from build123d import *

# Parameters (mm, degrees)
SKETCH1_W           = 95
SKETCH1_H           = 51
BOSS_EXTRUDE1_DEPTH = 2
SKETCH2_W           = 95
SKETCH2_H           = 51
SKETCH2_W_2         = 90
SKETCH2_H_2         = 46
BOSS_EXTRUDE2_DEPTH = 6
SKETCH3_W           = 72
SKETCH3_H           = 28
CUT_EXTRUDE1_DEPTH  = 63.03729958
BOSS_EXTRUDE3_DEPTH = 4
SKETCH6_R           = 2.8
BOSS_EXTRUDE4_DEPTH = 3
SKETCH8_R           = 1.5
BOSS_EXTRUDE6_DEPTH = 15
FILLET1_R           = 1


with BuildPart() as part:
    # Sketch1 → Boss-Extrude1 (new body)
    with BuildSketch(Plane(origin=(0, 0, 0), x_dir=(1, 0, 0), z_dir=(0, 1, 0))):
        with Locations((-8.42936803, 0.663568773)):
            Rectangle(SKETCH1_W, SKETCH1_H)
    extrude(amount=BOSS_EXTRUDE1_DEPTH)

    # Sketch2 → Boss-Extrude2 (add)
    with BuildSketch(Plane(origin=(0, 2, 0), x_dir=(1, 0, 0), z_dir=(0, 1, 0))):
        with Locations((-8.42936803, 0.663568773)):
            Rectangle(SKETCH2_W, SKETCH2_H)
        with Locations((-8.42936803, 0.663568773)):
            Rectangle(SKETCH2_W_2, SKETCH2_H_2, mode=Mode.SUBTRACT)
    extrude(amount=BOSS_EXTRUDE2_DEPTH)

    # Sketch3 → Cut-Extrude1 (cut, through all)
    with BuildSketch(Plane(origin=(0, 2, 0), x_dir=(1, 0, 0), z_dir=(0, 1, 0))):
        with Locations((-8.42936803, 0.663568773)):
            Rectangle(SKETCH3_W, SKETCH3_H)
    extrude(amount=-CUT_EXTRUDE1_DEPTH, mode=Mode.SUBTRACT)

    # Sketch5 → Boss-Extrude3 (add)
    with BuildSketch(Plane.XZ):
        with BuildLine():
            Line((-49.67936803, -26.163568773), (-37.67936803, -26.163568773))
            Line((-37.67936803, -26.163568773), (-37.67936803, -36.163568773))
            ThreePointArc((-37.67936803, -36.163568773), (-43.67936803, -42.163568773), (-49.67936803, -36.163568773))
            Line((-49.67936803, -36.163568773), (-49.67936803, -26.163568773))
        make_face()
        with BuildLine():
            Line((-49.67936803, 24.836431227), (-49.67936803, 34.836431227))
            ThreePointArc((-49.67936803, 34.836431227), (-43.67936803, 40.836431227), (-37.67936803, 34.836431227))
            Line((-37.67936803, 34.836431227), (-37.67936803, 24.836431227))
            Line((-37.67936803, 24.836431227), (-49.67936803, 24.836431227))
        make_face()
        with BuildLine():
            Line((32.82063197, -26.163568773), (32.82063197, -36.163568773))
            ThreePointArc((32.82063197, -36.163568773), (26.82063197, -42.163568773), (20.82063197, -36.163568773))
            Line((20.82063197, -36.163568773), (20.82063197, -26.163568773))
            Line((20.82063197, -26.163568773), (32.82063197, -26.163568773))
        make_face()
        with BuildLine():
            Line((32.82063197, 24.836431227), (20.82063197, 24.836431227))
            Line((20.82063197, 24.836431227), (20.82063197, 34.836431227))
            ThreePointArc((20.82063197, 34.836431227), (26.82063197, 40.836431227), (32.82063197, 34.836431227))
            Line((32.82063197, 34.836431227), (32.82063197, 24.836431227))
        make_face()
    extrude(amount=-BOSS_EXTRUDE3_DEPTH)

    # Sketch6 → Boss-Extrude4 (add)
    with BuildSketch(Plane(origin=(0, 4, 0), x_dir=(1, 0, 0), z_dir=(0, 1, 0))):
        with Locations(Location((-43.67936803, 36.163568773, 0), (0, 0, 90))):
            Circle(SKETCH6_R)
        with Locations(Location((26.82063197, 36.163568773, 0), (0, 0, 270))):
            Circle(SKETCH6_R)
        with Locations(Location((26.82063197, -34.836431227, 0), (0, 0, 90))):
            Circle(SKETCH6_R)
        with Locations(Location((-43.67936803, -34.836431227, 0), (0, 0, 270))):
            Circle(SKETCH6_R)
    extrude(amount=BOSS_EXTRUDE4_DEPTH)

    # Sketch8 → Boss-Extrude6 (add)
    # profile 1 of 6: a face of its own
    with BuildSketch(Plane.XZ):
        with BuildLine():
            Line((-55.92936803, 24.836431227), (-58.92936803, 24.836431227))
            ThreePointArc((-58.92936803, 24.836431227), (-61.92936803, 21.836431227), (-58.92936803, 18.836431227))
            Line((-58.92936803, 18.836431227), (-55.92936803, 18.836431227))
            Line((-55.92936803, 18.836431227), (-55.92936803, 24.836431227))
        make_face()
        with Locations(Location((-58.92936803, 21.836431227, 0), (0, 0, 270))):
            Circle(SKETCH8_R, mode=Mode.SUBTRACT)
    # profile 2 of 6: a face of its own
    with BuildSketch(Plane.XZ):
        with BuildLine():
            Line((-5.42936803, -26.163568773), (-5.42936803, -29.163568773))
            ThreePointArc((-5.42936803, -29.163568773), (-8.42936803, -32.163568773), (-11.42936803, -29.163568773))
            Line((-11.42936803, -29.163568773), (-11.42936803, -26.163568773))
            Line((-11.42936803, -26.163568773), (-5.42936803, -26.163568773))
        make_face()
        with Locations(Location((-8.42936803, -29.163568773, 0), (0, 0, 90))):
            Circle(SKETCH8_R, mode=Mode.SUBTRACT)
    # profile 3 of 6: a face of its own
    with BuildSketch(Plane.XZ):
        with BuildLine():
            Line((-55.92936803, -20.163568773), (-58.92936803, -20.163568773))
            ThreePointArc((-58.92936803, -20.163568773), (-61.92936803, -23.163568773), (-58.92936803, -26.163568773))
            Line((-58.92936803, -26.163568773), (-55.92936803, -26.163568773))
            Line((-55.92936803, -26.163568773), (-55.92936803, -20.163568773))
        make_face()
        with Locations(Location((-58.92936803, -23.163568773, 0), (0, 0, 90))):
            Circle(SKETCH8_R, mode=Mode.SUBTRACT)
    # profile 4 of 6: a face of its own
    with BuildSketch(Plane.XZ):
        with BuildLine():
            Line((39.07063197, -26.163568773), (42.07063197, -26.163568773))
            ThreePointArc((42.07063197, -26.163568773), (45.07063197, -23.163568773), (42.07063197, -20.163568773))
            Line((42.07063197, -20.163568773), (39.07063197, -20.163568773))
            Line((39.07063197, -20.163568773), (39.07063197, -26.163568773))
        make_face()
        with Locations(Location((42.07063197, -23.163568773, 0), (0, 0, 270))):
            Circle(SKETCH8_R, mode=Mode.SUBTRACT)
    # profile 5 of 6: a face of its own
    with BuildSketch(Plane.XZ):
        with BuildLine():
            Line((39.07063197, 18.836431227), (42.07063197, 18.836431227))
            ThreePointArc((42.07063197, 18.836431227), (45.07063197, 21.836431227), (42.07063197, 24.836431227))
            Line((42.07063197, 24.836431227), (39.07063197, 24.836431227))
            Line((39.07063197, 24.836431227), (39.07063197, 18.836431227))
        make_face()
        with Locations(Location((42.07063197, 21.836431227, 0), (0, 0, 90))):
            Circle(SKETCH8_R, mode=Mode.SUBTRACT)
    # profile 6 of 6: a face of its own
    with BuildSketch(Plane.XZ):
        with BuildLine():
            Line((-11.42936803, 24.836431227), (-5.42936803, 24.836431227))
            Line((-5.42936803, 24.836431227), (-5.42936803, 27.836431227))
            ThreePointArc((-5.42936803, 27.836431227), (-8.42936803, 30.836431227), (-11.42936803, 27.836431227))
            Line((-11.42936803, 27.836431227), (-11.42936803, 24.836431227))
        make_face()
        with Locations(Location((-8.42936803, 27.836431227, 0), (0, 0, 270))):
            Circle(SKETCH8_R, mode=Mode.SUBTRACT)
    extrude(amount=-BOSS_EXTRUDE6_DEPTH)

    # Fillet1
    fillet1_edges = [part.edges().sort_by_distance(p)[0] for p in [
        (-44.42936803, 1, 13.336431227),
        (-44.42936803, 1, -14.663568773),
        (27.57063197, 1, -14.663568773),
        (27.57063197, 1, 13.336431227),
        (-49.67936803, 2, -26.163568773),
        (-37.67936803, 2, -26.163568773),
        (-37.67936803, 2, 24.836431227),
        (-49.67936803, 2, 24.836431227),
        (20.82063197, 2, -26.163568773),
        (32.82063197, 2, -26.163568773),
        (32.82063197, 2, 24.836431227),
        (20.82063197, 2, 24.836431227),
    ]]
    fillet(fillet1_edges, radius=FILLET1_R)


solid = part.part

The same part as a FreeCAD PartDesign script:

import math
import FreeCAD as App
import Part
import Sketcher
Q = App.Units.Quantity


def edges_at(feature, points):
    """Names of the edges that pass closest to the given points."""
    edges = feature.Shape.Edges
    near = lambda p: min(range(len(edges)), key=lambda i: edges[i].distToShape(Part.Vertex(*p))[0])
    return sorted({f"Edge{near(p) + 1}" for p in points})


def add_polygon(sketch, points):
    """Adds a closed chain of lines whose ends are joined by coincident constraints."""
    first, n = sketch.GeometryCount, len(points)
    for a, b in zip(points, points[1:] + points[:1]):
        sketch.addGeometry(Part.LineSegment(App.Vector(*a, 0), App.Vector(*b, 0)), False)
    for i in range(n):
        sketch.addConstraint(Sketcher.Constraint("Coincident", first + i, 2, first + (i + 1) % n, 1))

doc = App.newDocument("Part")
body = doc.addObject("PartDesign::Body", "Body")

sketch1 = body.newObject("Sketcher::SketchObject", "Sketch")
sketch1.AttachmentSupport = (doc.getObject("XZ_Plane"), [""])
sketch1.MapMode = "FlatFace"
add_polygon(sketch1, [(-56, -26), (-56, 25), (39, 25), (39, -26)])
sketch1.addConstraint(Sketcher.Constraint("Vertical", 0))
sketch1.addConstraint(Sketcher.Constraint("Horizontal", 1))
sketch1.addConstraint(Sketcher.Constraint("Vertical", 2))
sketch1.addConstraint(Sketcher.Constraint("Horizontal", 3))
sketch1.addConstraint(Sketcher.Constraint("DistanceX", 1, 1, 1, 2, Q("95 mm")))
sketch1.addConstraint(Sketcher.Constraint("DistanceY", 0, 1, 0, 2, Q("51 mm")))
sketch1.addConstraint(Sketcher.Constraint("DistanceX", 0, 2, -1, 1, Q("55.929368 mm")))
sketch1.addConstraint(Sketcher.Constraint("DistanceY", -1, 1, 0, 2, Q("24.836431 mm")))
pad1 = body.newObject("PartDesign::Pad", "Pad")
pad1.Profile = sketch1
pad1.Length = 2
pad1.Reversed = True

sketch2 = body.newObject("Sketcher::SketchObject", "Sketch001")
sketch2.AttachmentSupport = (doc.getObject("XZ_Plane"), [""])
sketch2.MapMode = "FlatFace"
sketch2.AttachmentOffset = App.Placement(App.Vector(0, 0, -2), App.Rotation())
add_polygon(sketch2, [(-56, -26), (-56, 25), (39, 25), (39, -26)])
add_polygon(sketch2, [(37, 22), (-53, 22), (-53, -24), (37, -24)])
sketch2.addConstraint(Sketcher.Constraint("Vertical", 0))
sketch2.addConstraint(Sketcher.Constraint("Horizontal", 1))
sketch2.addConstraint(Sketcher.Constraint("Vertical", 2))
sketch2.addConstraint(Sketcher.Constraint("Horizontal", 3))
sketch2.addConstraint(Sketcher.Constraint("Horizontal", 4))
sketch2.addConstraint(Sketcher.Constraint("Vertical", 5))
sketch2.addConstraint(Sketcher.Constraint("Horizontal", 6))
sketch2.addConstraint(Sketcher.Constraint("Vertical", 7))
sketch2.addConstraint(Sketcher.Constraint("DistanceX", 1, 1, 1, 2, Q("95 mm")))
sketch2.addConstraint(Sketcher.Constraint("DistanceX", 4, 2, 4, 1, Q("90 mm")))
sketch2.addConstraint(Sketcher.Constraint("DistanceY", 0, 1, 0, 2, Q("51 mm")))
sketch2.addConstraint(Sketcher.Constraint("DistanceY", 5, 2, 5, 1, Q("46 mm")))
sketch2.addConstraint(Sketcher.Constraint("DistanceX", 0, 2, 4, 2, Q("2.5 mm")))
sketch2.addConstraint(Sketcher.Constraint("DistanceY", 4, 2, 0, 2, Q("2.5 mm")))
sketch2.addConstraint(Sketcher.Constraint("DistanceX", 0, 2, -1, 1, Q("55.929368 mm")))
sketch2.addConstraint(Sketcher.Constraint("DistanceY", -1, 1, 0, 2, Q("24.836431 mm")))
pad2 = body.newObject("PartDesign::Pad", "Pad001")
pad2.Profile = sketch2
pad2.Length = 6
pad2.Reversed = True

sketch3 = body.newObject("Sketcher::SketchObject", "Sketch002")
sketch3.AttachmentSupport = (doc.getObject("XZ_Plane"), [""])
sketch3.MapMode = "FlatFace"
sketch3.AttachmentOffset = App.Placement(App.Vector(0, 0, -2), App.Rotation())
add_polygon(sketch3, [(-44, -15), (-44, 13), (28, 13), (28, -15)])
sketch3.addConstraint(Sketcher.Constraint("Vertical", 0))
sketch3.addConstraint(Sketcher.Constraint("Horizontal", 1))
sketch3.addConstraint(Sketcher.Constraint("Vertical", 2))
sketch3.addConstraint(Sketcher.Constraint("Horizontal", 3))
sketch3.addConstraint(Sketcher.Constraint("DistanceX", 1, 1, 1, 2, Q("72 mm")))
sketch3.addConstraint(Sketcher.Constraint("DistanceY", 0, 1, 0, 2, Q("28 mm")))
sketch3.addConstraint(Sketcher.Constraint("DistanceX", 0, 2, -1, 1, Q("44.429368 mm")))
sketch3.addConstraint(Sketcher.Constraint("DistanceY", -1, 1, 0, 2, Q("13.336431 mm")))
pocket1 = body.newObject("PartDesign::Pocket", "Pocket")
pocket1.Profile = sketch3
pocket1.Type = "ThroughAll"
pocket1.Reversed = True

sketch4 = body.newObject("Sketcher::SketchObject", "Sketch003")
sketch4.AttachmentSupport = (doc.getObject("XZ_Plane"), [""])
sketch4.MapMode = "FlatFace"
sketch4.addGeometry(Part.LineSegment(App.Vector(-38, -26, 0), App.Vector(-50, -26, 0)), False)
sketch4.addGeometry(Part.LineSegment(App.Vector(-50, -26, 0), App.Vector(-50, -36, 0)), False)
sketch4.addGeometry(Part.ArcOfCircle(Part.Circle(App.Vector(-44, -36, 0), App.Vector(0, 0, 1), 6), math.radians(180), math.radians(360)), False)
sketch4.addGeometry(Part.LineSegment(App.Vector(-38, -36, 0), App.Vector(-38, -26, 0)), False)
sketch4.addGeometry(Part.LineSegment(App.Vector(-50, 35, 0), App.Vector(-50, 25, 0)), False)
sketch4.addGeometry(Part.LineSegment(App.Vector(-50, 25, 0), App.Vector(-38, 25, 0)), False)
sketch4.addGeometry(Part.LineSegment(App.Vector(-38, 25, 0), App.Vector(-38, 35, 0)), False)
sketch4.addGeometry(Part.ArcOfCircle(Part.Circle(App.Vector(-44, 35, 0), App.Vector(0, 0, 1), 6), math.radians(0), math.radians(180)), False)
sketch4.addGeometry(Part.LineSegment(App.Vector(33, -36, 0), App.Vector(33, -26, 0)), False)
sketch4.addGeometry(Part.LineSegment(App.Vector(33, -26, 0), App.Vector(21, -26, 0)), False)
sketch4.addGeometry(Part.LineSegment(App.Vector(21, -26, 0), App.Vector(21, -36, 0)), False)
sketch4.addGeometry(Part.ArcOfCircle(Part.Circle(App.Vector(27, -36, 0), App.Vector(0, 0, 1), 6), math.radians(180), math.radians(360)), False)
sketch4.addGeometry(Part.LineSegment(App.Vector(21, 25, 0), App.Vector(33, 25, 0)), False)
sketch4.addGeometry(Part.LineSegment(App.Vector(33, 25, 0), App.Vector(33, 35, 0)), False)
sketch4.addGeometry(Part.ArcOfCircle(Part.Circle(App.Vector(27, 35, 0), App.Vector(0, 0, 1), 6), math.radians(0), math.radians(180)), False)
sketch4.addGeometry(Part.LineSegment(App.Vector(21, 35, 0), App.Vector(21, 25, 0)), False)
sketch4.addConstraint(Sketcher.Constraint("Coincident", 0, 2, 1, 1))
sketch4.addConstraint(Sketcher.Constraint("Tangent", 1, 2, 2, 1))
sketch4.addConstraint(Sketcher.Constraint("Tangent", 2, 2, 3, 1))
sketch4.addConstraint(Sketcher.Constraint("Coincident", 3, 2, 0, 1))
sketch4.addConstraint(Sketcher.Constraint("Coincident", 4, 2, 5, 1))
sketch4.addConstraint(Sketcher.Constraint("Coincident", 5, 2, 6, 1))
sketch4.addConstraint(Sketcher.Constraint("Tangent", 6, 2, 7, 1))
sketch4.addConstraint(Sketcher.Constraint("Tangent", 7, 2, 4, 1))
sketch4.addConstraint(Sketcher.Constraint("Coincident", 8, 2, 9, 1))
sketch4.addConstraint(Sketcher.Constraint("Coincident", 9, 2, 10, 1))
sketch4.addConstraint(Sketcher.Constraint("Tangent", 10, 2, 11, 1))
sketch4.addConstraint(Sketcher.Constraint("Tangent", 11, 2, 8, 1))
sketch4.addConstraint(Sketcher.Constraint("Coincident", 12, 2, 13, 1))
sketch4.addConstraint(Sketcher.Constraint("Tangent", 13, 2, 14, 1))
sketch4.addConstraint(Sketcher.Constraint("Tangent", 14, 2, 15, 1))
sketch4.addConstraint(Sketcher.Constraint("Coincident", 15, 2, 12, 1))
sketch4.addConstraint(Sketcher.Constraint("Horizontal", 0))
sketch4.addConstraint(Sketcher.Constraint("Vertical", 1))
sketch4.addConstraint(Sketcher.Constraint("Vertical", 3))
sketch4.addConstraint(Sketcher.Constraint("Vertical", 4))
sketch4.addConstraint(Sketcher.Constraint("Horizontal", 5))
sketch4.addConstraint(Sketcher.Constraint("Vertical", 6))
sketch4.addConstraint(Sketcher.Constraint("Vertical", 8))
sketch4.addConstraint(Sketcher.Constraint("Horizontal", 9))
sketch4.addConstraint(Sketcher.Constraint("Vertical", 10))
sketch4.addConstraint(Sketcher.Constraint("Horizontal", 12))
sketch4.addConstraint(Sketcher.Constraint("Vertical", 13))
sketch4.addConstraint(Sketcher.Constraint("Vertical", 15))
sketch4.addConstraint(Sketcher.Constraint("Equal", 2, 7))
sketch4.addConstraint(Sketcher.Constraint("Equal", 7, 11))
sketch4.addConstraint(Sketcher.Constraint("Equal", 11, 14))
sketch4.addConstraint(Sketcher.Constraint("Horizontal", 2, 3, 11, 3))
sketch4.addConstraint(Sketcher.Constraint("Horizontal", 7, 3, 14, 3))
sketch4.addConstraint(Sketcher.Constraint("Horizontal", 3, 2, 8, 2))
sketch4.addConstraint(Sketcher.Constraint("Horizontal", 5, 2, 12, 2))
sketch4.addConstraint(Sketcher.Constraint("Vertical", 2, 3, 7, 3))
sketch4.addConstraint(Sketcher.Constraint("Vertical", 11, 3, 14, 3))
sketch4.addConstraint(Sketcher.Constraint("Equal", 3, 4))
sketch4.addConstraint(Sketcher.Constraint("Radius", 2, Q("6 mm")))
sketch4.addConstraint(Sketcher.Constraint("DistanceY", 1, 2, 1, 1, Q("10 mm")))
sketch4.addConstraint(Sketcher.Constraint("DistanceY", 2, 3, 7, 3, Q("71 mm")))
sketch4.addConstraint(Sketcher.Constraint("DistanceX", 2, 3, 11, 3, Q("70.5 mm")))
sketch4.addConstraint(Sketcher.Constraint("DistanceX", 2, 3, -1, 1, Q("43.679368 mm")))
sketch4.addConstraint(Sketcher.Constraint("DistanceY", 2, 3, -1, 1, Q("36.163569 mm")))
pad3 = body.newObject("PartDesign::Pad", "Pad002")
pad3.Profile = sketch4
pad3.Length = 4
pad3.Reversed = True

sketch5 = body.newObject("Sketcher::SketchObject", "Sketch004")
sketch5.AttachmentSupport = (doc.getObject("XZ_Plane"), [""])
sketch5.MapMode = "FlatFace"
sketch5.AttachmentOffset = App.Placement(App.Vector(0, 0, -4), App.Rotation())
sketch5.addGeometry(Part.Circle(App.Vector(-43.7, -36.2, 0), App.Vector(0, 0, 1), 2.8), False)
sketch5.addGeometry(Part.Circle(App.Vector(26.8, -36.2, 0), App.Vector(0, 0, 1), 2.8), False)
sketch5.addGeometry(Part.Circle(App.Vector(26.8, 34.8, 0), App.Vector(0, 0, 1), 2.8), False)
sketch5.addGeometry(Part.Circle(App.Vector(-43.7, 34.8, 0), App.Vector(0, 0, 1), 2.8), False)
sketch5.addConstraint(Sketcher.Constraint("Equal", 0, 1))
sketch5.addConstraint(Sketcher.Constraint("Equal", 1, 2))
sketch5.addConstraint(Sketcher.Constraint("Equal", 2, 3))
sketch5.addConstraint(Sketcher.Constraint("Horizontal", 0, 3, 1, 3))
sketch5.addConstraint(Sketcher.Constraint("Horizontal", 2, 3, 3, 3))
sketch5.addConstraint(Sketcher.Constraint("Vertical", 1, 3, 2, 3))
sketch5.addConstraint(Sketcher.Constraint("Vertical", 0, 3, 3, 3))
sketch5.addConstraint(Sketcher.Constraint("Diameter", 0, Q("5.6 mm")))
sketch5.addConstraint(Sketcher.Constraint("DistanceY", 1, 3, 2, 3, Q("71 mm")))
sketch5.addConstraint(Sketcher.Constraint("DistanceX", 0, 3, 1, 3, Q("70.5 mm")))
sketch5.addConstraint(Sketcher.Constraint("DistanceX", 0, 3, -1, 1, Q("43.679368 mm")))
sketch5.addConstraint(Sketcher.Constraint("DistanceY", 0, 3, -1, 1, Q("36.163569 mm")))
pad4 = body.newObject("PartDesign::Pad", "Pad003")
pad4.Profile = sketch5
pad4.Length = 3
pad4.Reversed = True

sketch6 = body.newObject("Sketcher::SketchObject", "Sketch005")
sketch6.AttachmentSupport = (doc.getObject("XZ_Plane"), [""])
sketch6.MapMode = "FlatFace"
sketch6.addGeometry(Part.LineSegment(App.Vector(-55.9, 24.8, 0), App.Vector(-58.9, 24.8, 0)), False)
sketch6.addGeometry(Part.ArcOfCircle(Part.Circle(App.Vector(-58.9, 21.8, 0), App.Vector(0, 0, 1), 3), math.radians(90), math.radians(270)), False)
sketch6.addGeometry(Part.LineSegment(App.Vector(-58.9, 18.8, 0), App.Vector(-55.9, 18.8, 0)), False)
sketch6.addGeometry(Part.LineSegment(App.Vector(-55.9, 18.8, 0), App.Vector(-55.9, 24.8, 0)), False)
sketch6.addGeometry(Part.Circle(App.Vector(-58.9, 21.8, 0), App.Vector(0, 0, 1), 1.5), False)
sketch6.addGeometry(Part.LineSegment(App.Vector(-5.4, -29.2, 0), App.Vector(-5.4, -26.2, 0)), False)
sketch6.addGeometry(Part.LineSegment(App.Vector(-5.4, -26.2, 0), App.Vector(-11.4, -26.2, 0)), False)
sketch6.addGeometry(Part.LineSegment(App.Vector(-11.4, -26.2, 0), App.Vector(-11.4, -29.2, 0)), False)
sketch6.addGeometry(Part.ArcOfCircle(Part.Circle(App.Vector(-8.4, -29.2, 0), App.Vector(0, 0, 1), 3), math.radians(180), math.radians(360)), False)
sketch6.addGeometry(Part.Circle(App.Vector(-8.4, -29.2, 0), App.Vector(0, 0, 1), 1.5), False)
sketch6.addGeometry(Part.LineSegment(App.Vector(-55.9, -20.2, 0), App.Vector(-58.9, -20.2, 0)), False)
sketch6.addGeometry(Part.ArcOfCircle(Part.Circle(App.Vector(-58.9, -23.2, 0), App.Vector(0, 0, 1), 3), math.radians(90), math.radians(270)), False)
sketch6.addGeometry(Part.LineSegment(App.Vector(-58.9, -26.2, 0), App.Vector(-55.9, -26.2, 0)), False)
sketch6.addGeometry(Part.LineSegment(App.Vector(-55.9, -26.2, 0), App.Vector(-55.9, -20.2, 0)), False)
sketch6.addGeometry(Part.Circle(App.Vector(-58.9, -23.2, 0), App.Vector(0, 0, 1), 1.5), False)
sketch6.addGeometry(Part.LineSegment(App.Vector(39.1, -26.2, 0), App.Vector(42.1, -26.2, 0)), False)
sketch6.addGeometry(Part.ArcOfCircle(Part.Circle(App.Vector(42.1, -23.2, 0), App.Vector(0, 0, 1), 3), math.radians(-90), math.radians(90)), False)
sketch6.addGeometry(Part.LineSegment(App.Vector(42.1, -20.2, 0), App.Vector(39.1, -20.2, 0)), False)
sketch6.addGeometry(Part.LineSegment(App.Vector(39.1, -20.2, 0), App.Vector(39.1, -26.2, 0)), False)
sketch6.addGeometry(Part.Circle(App.Vector(42.1, -23.2, 0), App.Vector(0, 0, 1), 1.5), False)
sketch6.addGeometry(Part.LineSegment(App.Vector(39.1, 18.8, 0), App.Vector(42.1, 18.8, 0)), False)
sketch6.addGeometry(Part.ArcOfCircle(Part.Circle(App.Vector(42.1, 21.8, 0), App.Vector(0, 0, 1), 3), math.radians(-90), math.radians(90)), False)
sketch6.addGeometry(Part.LineSegment(App.Vector(42.1, 24.8, 0), App.Vector(39.1, 24.8, 0)), False)
sketch6.addGeometry(Part.LineSegment(App.Vector(39.1, 24.8, 0), App.Vector(39.1, 18.8, 0)), False)
sketch6.addGeometry(Part.Circle(App.Vector(42.1, 21.8, 0), App.Vector(0, 0, 1), 1.5), False)
sketch6.addGeometry(Part.LineSegment(App.Vector(-11.4, 24.8, 0), App.Vector(-5.4, 24.8, 0)), False)
sketch6.addGeometry(Part.LineSegment(App.Vector(-5.4, 24.8, 0), App.Vector(-5.4, 27.8, 0)), False)
sketch6.addGeometry(Part.ArcOfCircle(Part.Circle(App.Vector(-8.4, 27.8, 0), App.Vector(0, 0, 1), 3), math.radians(0), math.radians(180)), False)
sketch6.addGeometry(Part.LineSegment(App.Vector(-11.4, 27.8, 0), App.Vector(-11.4, 24.8, 0)), False)
sketch6.addGeometry(Part.Circle(App.Vector(-8.4, 27.8, 0), App.Vector(0, 0, 1), 1.5), False)
sketch6.addConstraint(Sketcher.Constraint("Tangent", 0, 2, 1, 1))
sketch6.addConstraint(Sketcher.Constraint("Tangent", 1, 2, 2, 1))
sketch6.addConstraint(Sketcher.Constraint("Coincident", 2, 2, 3, 1))
sketch6.addConstraint(Sketcher.Constraint("Coincident", 3, 2, 0, 1))
sketch6.addConstraint(Sketcher.Constraint("Coincident", 5, 2, 6, 1))
sketch6.addConstraint(Sketcher.Constraint("Coincident", 6, 2, 7, 1))
sketch6.addConstraint(Sketcher.Constraint("Tangent", 7, 2, 8, 1))
sketch6.addConstraint(Sketcher.Constraint("Tangent", 8, 2, 5, 1))
sketch6.addConstraint(Sketcher.Constraint("Tangent", 10, 2, 11, 1))
sketch6.addConstraint(Sketcher.Constraint("Tangent", 11, 2, 12, 1))
sketch6.addConstraint(Sketcher.Constraint("Coincident", 12, 2, 13, 1))
sketch6.addConstraint(Sketcher.Constraint("Coincident", 13, 2, 10, 1))
sketch6.addConstraint(Sketcher.Constraint("Tangent", 15, 2, 16, 1))
sketch6.addConstraint(Sketcher.Constraint("Tangent", 16, 2, 17, 1))
sketch6.addConstraint(Sketcher.Constraint("Coincident", 17, 2, 18, 1))
sketch6.addConstraint(Sketcher.Constraint("Coincident", 18, 2, 15, 1))
sketch6.addConstraint(Sketcher.Constraint("Tangent", 20, 2, 21, 1))
sketch6.addConstraint(Sketcher.Constraint("Tangent", 21, 2, 22, 1))
sketch6.addConstraint(Sketcher.Constraint("Coincident", 22, 2, 23, 1))
sketch6.addConstraint(Sketcher.Constraint("Coincident", 23, 2, 20, 1))
sketch6.addConstraint(Sketcher.Constraint("Coincident", 25, 2, 26, 1))
sketch6.addConstraint(Sketcher.Constraint("Tangent", 26, 2, 27, 1))
sketch6.addConstraint(Sketcher.Constraint("Tangent", 27, 2, 28, 1))
sketch6.addConstraint(Sketcher.Constraint("Coincident", 28, 2, 25, 1))
sketch6.addConstraint(Sketcher.Constraint("Horizontal", 0))
sketch6.addConstraint(Sketcher.Constraint("Horizontal", 2))
sketch6.addConstraint(Sketcher.Constraint("Vertical", 3))
sketch6.addConstraint(Sketcher.Constraint("Vertical", 5))
sketch6.addConstraint(Sketcher.Constraint("Horizontal", 6))
sketch6.addConstraint(Sketcher.Constraint("Vertical", 7))
sketch6.addConstraint(Sketcher.Constraint("Horizontal", 10))
sketch6.addConstraint(Sketcher.Constraint("Horizontal", 12))
sketch6.addConstraint(Sketcher.Constraint("Vertical", 13))
sketch6.addConstraint(Sketcher.Constraint("Horizontal", 15))
sketch6.addConstraint(Sketcher.Constraint("Horizontal", 17))
sketch6.addConstraint(Sketcher.Constraint("Vertical", 18))
sketch6.addConstraint(Sketcher.Constraint("Horizontal", 20))
sketch6.addConstraint(Sketcher.Constraint("Horizontal", 22))
sketch6.addConstraint(Sketcher.Constraint("Vertical", 23))
sketch6.addConstraint(Sketcher.Constraint("Horizontal", 25))
sketch6.addConstraint(Sketcher.Constraint("Vertical", 26))
sketch6.addConstraint(Sketcher.Constraint("Vertical", 28))
sketch6.addConstraint(Sketcher.Constraint("Coincident", 4, 3, 1, 3))
sketch6.addConstraint(Sketcher.Constraint("Coincident", 9, 3, 8, 3))
sketch6.addConstraint(Sketcher.Constraint("Coincident", 14, 3, 11, 3))
sketch6.addConstraint(Sketcher.Constraint("Coincident", 19, 3, 16, 3))
sketch6.addConstraint(Sketcher.Constraint("Coincident", 24, 3, 21, 3))
sketch6.addConstraint(Sketcher.Constraint("Coincident", 29, 3, 27, 3))
sketch6.addConstraint(Sketcher.Constraint("Equal", 1, 8))
sketch6.addConstraint(Sketcher.Constraint("Equal", 4, 9))
sketch6.addConstraint(Sketcher.Constraint("Equal", 8, 11))
sketch6.addConstraint(Sketcher.Constraint("Equal", 9, 14))
sketch6.addConstraint(Sketcher.Constraint("Equal", 11, 16))
sketch6.addConstraint(Sketcher.Constraint("Equal", 14, 19))
sketch6.addConstraint(Sketcher.Constraint("Equal", 16, 21))
sketch6.addConstraint(Sketcher.Constraint("Equal", 19, 24))
sketch6.addConstraint(Sketcher.Constraint("Equal", 21, 27))
sketch6.addConstraint(Sketcher.Constraint("Equal", 24, 29))
sketch6.addConstraint(Sketcher.Constraint("Horizontal", 14, 3, 16, 3))
sketch6.addConstraint(Sketcher.Constraint("Horizontal", 4, 3, 21, 3))
sketch6.addConstraint(Sketcher.Constraint("Horizontal", 6, 2, 11, 2))
sketch6.addConstraint(Sketcher.Constraint("Horizontal", 22, 2, 25, 2))
sketch6.addConstraint(Sketcher.Constraint("Vertical", 4, 3, 11, 3))
sketch6.addConstraint(Sketcher.Constraint("Vertical", 19, 3, 21, 3))
sketch6.addConstraint(Sketcher.Constraint("Vertical", 9, 3, 27, 3))
sketch6.addConstraint(Sketcher.Constraint("Vertical", 3, 2, 12, 2))
sketch6.addConstraint(Sketcher.Constraint("Vertical", 18, 2, 22, 2))
sketch6.addConstraint(Sketcher.Constraint("Equal", 12, 15))
sketch6.addConstraint(Sketcher.Constraint("Equal", 22, 5))
sketch6.addConstraint(Sketcher.Constraint("Equal", 7, 26))
sketch6.addConstraint(Sketcher.Constraint("Diameter", 4, Q("3 mm")))
sketch6.addConstraint(Sketcher.Constraint("Radius", 1, Q("3 mm")))
sketch6.addConstraint(Sketcher.Constraint("DistanceX", 0, 2, 0, 1, Q("3 mm")))
sketch6.addConstraint(Sketcher.Constraint("DistanceY", 8, 3, 1, 3, Q("51 mm")))
sketch6.addConstraint(Sketcher.Constraint("DistanceX", 11, 3, 16, 3, Q("101 mm")))
sketch6.addConstraint(Sketcher.Constraint("DistanceX", 1, 3, 8, 3, Q("50.5 mm")))
sketch6.addConstraint(Sketcher.Constraint("DistanceX", 1, 3, -1, 1, Q("58.929368 mm")))
sketch6.addConstraint(Sketcher.Constraint("DistanceY", -1, 1, 1, 3, Q("21.836431 mm")))
pad5 = body.newObject("PartDesign::Pad", "Pad004")
pad5.Profile = sketch6
pad5.Length = 15
pad5.Reversed = True
doc.recompute()

fillet = body.newObject("PartDesign::Fillet", "Fillet")
fillet.Base = (pad5, edges_at(pad5, [
    (-44.429, 1, 13.336),
    (-44.429, 1, -14.664),
    (27.571, 1, -14.664),
    (27.571, 1, 13.336),
    (-49.679, 2, -26.164),
    (-37.679, 2, -26.164),
    (-37.679, 2, 24.836),
    (-49.679, 2, 24.836),
    (20.821, 2, -26.164),
    (32.821, 2, -26.164),
    (32.821, 2, 24.836),
    (20.821, 2, 24.836),
]))
fillet.Radius = 1

doc.recompute()
